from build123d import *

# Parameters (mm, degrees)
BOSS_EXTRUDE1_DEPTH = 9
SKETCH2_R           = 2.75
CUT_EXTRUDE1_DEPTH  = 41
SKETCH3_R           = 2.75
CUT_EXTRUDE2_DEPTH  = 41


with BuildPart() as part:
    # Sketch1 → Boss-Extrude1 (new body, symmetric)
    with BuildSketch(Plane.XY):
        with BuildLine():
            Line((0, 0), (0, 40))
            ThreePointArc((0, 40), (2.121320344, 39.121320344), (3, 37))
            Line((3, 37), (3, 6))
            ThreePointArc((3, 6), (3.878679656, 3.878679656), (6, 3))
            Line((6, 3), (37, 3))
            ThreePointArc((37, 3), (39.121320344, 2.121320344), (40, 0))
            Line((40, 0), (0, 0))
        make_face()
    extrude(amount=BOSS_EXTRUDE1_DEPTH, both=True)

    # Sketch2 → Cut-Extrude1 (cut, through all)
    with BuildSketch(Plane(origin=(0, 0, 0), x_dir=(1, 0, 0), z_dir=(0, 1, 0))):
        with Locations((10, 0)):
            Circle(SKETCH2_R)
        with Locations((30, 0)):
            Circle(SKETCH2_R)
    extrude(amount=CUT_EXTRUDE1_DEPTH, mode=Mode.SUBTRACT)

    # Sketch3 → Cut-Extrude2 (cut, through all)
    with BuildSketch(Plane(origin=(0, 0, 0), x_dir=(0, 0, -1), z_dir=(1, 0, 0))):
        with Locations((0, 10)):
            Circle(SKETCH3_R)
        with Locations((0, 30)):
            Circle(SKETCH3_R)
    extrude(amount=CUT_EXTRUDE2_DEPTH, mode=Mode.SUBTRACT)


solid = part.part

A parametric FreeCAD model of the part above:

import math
import FreeCAD as App
import Part
import Sketcher

doc = App.newDocument("Part")
params = doc.addObject("Spreadsheet::Sheet", "Params")
for row, (alias, value) in enumerate([
    ("sketch1_radius", "3 mm"),
    ("sketch1_width", "40 mm"),
    ("pad1_length", "18 mm"),
    ("sketch2_diameter", "5.5 mm"),
    ("sketch3_diameter", "5.5 mm"),
], start=1):
    params.set(f"A{row}", alias)
    params.set(f"B{row}", "=" + value)
    params.setAlias(f"B{row}", alias)

body = doc.addObject("PartDesign::Body", "Body")

# Sketch on XY plane
sketch1 = body.newObject("Sketcher::SketchObject", "Sketch")
sketch1.AttachmentSupport = (doc.getObject("XY_Plane"), [""])
sketch1.MapMode = "FlatFace"
sketch1.addGeometry([
    Part.LineSegment(App.Vector(0, 40, 0), App.Vector(0, 0, 0)),  # 0
    Part.LineSegment(App.Vector(0, 0, 0), App.Vector(40, 0, 0)),  # 1
    Part.ArcOfCircle(Part.Circle(App.Vector(37, 0, 0), App.Vector(0, 0, 1), 3), math.radians(0), math.radians(90)),  # 2
    Part.LineSegment(App.Vector(37, 3, 0), App.Vector(6, 3, 0)),  # 3
    Part.ArcOfCircle(Part.Circle(App.Vector(6, 6, 0), App.Vector(0, 0, 1), 3), math.radians(180), math.radians(270)),  # 4
    Part.LineSegment(App.Vector(3, 6, 0), App.Vector(3, 37, 0)),  # 5
    Part.ArcOfCircle(Part.Circle(App.Vector(0, 37, 0), App.Vector(0, 0, 1), 3), math.radians(0), math.radians(90)),  # 6
], False)
sketch1.addConstraint([
    Sketcher.Constraint("Coincident", 0, 2, 1, 1),
    Sketcher.Constraint("Coincident", 1, 2, 2, 1),
    Sketcher.Constraint("Tangent", 2, 2, 3, 1),
    Sketcher.Constraint("Tangent", 3, 2, 4, 2),
    Sketcher.Constraint("Tangent", 4, 1, 5, 1),
    Sketcher.Constraint("Tangent", 5, 2, 6, 1),
    Sketcher.Constraint("Coincident", 6, 2, 0, 1),
    Sketcher.Constraint("Vertical", 0),
    Sketcher.Constraint("Horizontal", 1),
    Sketcher.Constraint("Horizontal", 3),
    Sketcher.Constraint("Vertical", 5),
    Sketcher.Constraint("Coincident", 0, 2, -1, 1),
    Sketcher.Constraint("Equal", 2, 4),
    Sketcher.Constraint("Equal", 4, 6),
    Sketcher.Constraint("PointOnObject", 2, 3, -1),
    Sketcher.Constraint("PointOnObject", 6, 3, -2),
    Sketcher.Constraint("Equal", 1, 0),
    Sketcher.Constraint("Radius", 2, 3.0),
    Sketcher.Constraint("DistanceX", 1, 1, 1, 2, 40.0),
])
sketch1.setExpression("Constraints[17]", "Params.sketch1_radius")
sketch1.setExpression("Constraints[18]", "Params.sketch1_width")
pad1 = body.newObject("PartDesign::Pad", "Pad")
pad1.Profile = sketch1
pad1.setExpression("Length", "Params.pad1_length")
pad1.Midplane = True

# Sketch on XZ plane
sketch2 = body.newObject("Sketcher::SketchObject", "Sketch001")
sketch2.AttachmentSupport = (doc.getObject("XZ_Plane"), [""])
sketch2.MapMode = "FlatFace"
sketch2.addGeometry([
    Part.Circle(App.Vector(10, 0, 0), App.Vector(0, 0, 1), 2.8),
    Part.Circle(App.Vector(30, 0, 0), App.Vector(0, 0, 1), 2.8),
], False)
sketch2.addConstraint([
    Sketcher.Constraint("Equal", 0, 1),
    Sketcher.Constraint("PointOnObject", 0, 3, -1),
    Sketcher.Constraint("PointOnObject", 1, 3, -1),
    Sketcher.Constraint("Diameter", 0, 5.5),
    Sketcher.Constraint("DistanceX", -1, 1, 0, 3, 10.0),
    Sketcher.Constraint("DistanceX", -1, 1, 1, 3, 30.0),
])
sketch2.setExpression("Constraints[3]", "Params.sketch2_diameter")
pocket1 = body.newObject("PartDesign::Pocket", "Pocket")
pocket1.Profile = sketch2
pocket1.Type = "ThroughAll"

# Sketch on YZ plane
sketch3 = body.newObject("Sketcher::SketchObject", "Sketch002")
sketch3.AttachmentSupport = (doc.getObject("YZ_Plane"), [""])
sketch3.MapMode = "FlatFace"
sketch3.addGeometry([
    Part.Circle(App.Vector(10, 0, 0), App.Vector(0, 0, 1), 2.8),
    Part.Circle(App.Vector(30, 0, 0), App.Vector(0, 0, 1), 2.8),
], False)
sketch3.addConstraint([
    Sketcher.Constraint("Equal", 0, 1),
    Sketcher.Constraint("PointOnObject", 0, 3, -1),
    Sketcher.Constraint("PointOnObject", 1, 3, -1),
    Sketcher.Constraint("Diameter", 0, 5.5),
    Sketcher.Constraint("DistanceX", -1, 1, 0, 3, 10.0),
    Sketcher.Constraint("DistanceX", -1, 1, 1, 3, 30.0),
])
sketch3.setExpression("Constraints[3]", "Params.sketch3_diameter")
pocket2 = body.newObject("PartDesign::Pocket", "Pocket001")
pocket2.Profile = sketch3
pocket2.Type = "ThroughAll"
pocket2.Reversed = True

doc.recompute()
